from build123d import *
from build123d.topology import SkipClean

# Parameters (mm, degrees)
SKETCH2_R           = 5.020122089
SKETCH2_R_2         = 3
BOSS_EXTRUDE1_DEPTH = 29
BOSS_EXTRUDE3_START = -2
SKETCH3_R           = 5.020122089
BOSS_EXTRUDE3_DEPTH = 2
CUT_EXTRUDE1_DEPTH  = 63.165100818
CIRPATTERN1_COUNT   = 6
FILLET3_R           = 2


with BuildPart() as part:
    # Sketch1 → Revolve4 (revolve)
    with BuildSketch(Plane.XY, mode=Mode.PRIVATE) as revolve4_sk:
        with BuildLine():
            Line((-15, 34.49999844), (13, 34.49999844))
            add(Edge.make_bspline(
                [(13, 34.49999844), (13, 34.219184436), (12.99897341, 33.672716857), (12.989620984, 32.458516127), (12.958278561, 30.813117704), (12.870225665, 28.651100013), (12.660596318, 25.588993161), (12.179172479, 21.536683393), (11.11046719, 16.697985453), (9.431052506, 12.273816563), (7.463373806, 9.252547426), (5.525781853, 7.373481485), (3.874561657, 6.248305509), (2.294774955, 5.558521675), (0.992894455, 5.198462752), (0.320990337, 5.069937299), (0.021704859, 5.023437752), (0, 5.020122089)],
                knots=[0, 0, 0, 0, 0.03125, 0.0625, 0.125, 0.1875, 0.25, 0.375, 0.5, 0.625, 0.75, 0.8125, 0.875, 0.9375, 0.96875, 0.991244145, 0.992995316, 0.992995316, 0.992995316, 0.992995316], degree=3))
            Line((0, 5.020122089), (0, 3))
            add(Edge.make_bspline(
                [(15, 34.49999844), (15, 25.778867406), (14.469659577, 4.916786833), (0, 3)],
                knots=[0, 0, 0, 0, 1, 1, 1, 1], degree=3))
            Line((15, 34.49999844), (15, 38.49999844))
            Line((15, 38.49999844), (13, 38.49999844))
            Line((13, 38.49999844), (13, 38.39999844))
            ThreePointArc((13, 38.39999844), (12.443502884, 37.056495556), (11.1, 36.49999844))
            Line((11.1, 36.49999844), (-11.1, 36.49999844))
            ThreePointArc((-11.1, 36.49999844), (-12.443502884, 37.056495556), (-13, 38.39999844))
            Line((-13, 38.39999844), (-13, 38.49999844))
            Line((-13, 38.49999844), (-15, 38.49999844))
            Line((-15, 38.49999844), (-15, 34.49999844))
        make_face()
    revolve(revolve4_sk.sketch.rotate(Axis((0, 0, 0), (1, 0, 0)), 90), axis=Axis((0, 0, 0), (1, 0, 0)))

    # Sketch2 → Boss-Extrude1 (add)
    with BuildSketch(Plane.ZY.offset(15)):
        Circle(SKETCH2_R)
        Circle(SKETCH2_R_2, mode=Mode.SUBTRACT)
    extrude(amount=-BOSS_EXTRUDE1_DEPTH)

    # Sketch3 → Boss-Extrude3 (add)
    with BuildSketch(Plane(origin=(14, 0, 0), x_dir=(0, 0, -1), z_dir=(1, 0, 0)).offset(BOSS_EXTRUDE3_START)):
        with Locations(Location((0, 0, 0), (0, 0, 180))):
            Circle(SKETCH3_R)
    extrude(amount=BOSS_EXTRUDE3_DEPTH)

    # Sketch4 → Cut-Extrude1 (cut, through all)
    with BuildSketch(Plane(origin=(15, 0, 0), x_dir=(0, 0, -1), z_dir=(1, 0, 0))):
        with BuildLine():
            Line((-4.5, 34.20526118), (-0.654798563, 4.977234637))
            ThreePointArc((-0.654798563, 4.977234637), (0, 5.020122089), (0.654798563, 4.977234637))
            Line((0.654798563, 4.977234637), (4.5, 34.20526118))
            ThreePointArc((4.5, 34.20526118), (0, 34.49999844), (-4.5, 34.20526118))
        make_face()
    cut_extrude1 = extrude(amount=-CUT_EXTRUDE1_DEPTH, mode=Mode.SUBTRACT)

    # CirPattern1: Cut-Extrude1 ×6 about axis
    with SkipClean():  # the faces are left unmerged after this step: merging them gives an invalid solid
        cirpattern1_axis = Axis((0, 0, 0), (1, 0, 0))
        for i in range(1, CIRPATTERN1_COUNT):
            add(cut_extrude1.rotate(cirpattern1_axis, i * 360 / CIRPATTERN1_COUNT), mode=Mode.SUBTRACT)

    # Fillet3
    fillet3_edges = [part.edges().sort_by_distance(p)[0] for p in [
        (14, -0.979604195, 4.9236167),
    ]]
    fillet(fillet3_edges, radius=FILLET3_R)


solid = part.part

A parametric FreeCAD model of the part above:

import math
import FreeCAD as App
import Part
import Sketcher

V = App.Vector


def edges_at(feature, points):
    """Names of the edges that pass closest to the given points."""
    edges = feature.Shape.Edges
    near = lambda p: min(range(len(edges)), key=lambda i: edges[i].distToShape(Part.Vertex(*p))[0])
    return sorted({f"Edge{near(p) + 1}" for p in points})

doc = App.newDocument("Part")
params = doc.addObject("Spreadsheet::Sheet", "Params")
for row, (alias, value) in enumerate([
    ("sketch1_radius", "1.9 mm"),
    ("sketch1_height", "4 mm"),
    ("sketch1_height2", "0.1 mm"),
    ("revolution_angle", "360 deg"),
    ("sketch2_diameter", "6 mm"),
    ("pad1_length", "29 mm"),
    ("pad2_length", "2 mm"),
    ("sketch4_radius", "34.499998 mm"),
    ("fillet_radius", "2 mm"),
], start=1):
    params.set(f"A{row}", alias)
    params.set(f"B{row}", "=" + value)
    params.setAlias(f"B{row}", alias)

body = doc.addObject("PartDesign::Body", "Body")

# Sketch on XY plane
sketch1 = doc.addObject("Sketcher::SketchObject", "Sketch")
body.addObject(sketch1)
sketch1.AttachmentSupport = (doc.XY_Plane, [""])
sketch1.MapMode = "FlatFace"
sketch1.addGeometry(Part.LineSegment(V(-15, 34.499998, 0), V(13, 34.499998, 0)), False)
sketch1.addGeometry(Part.BSplineCurve([V(13, 34.499998, 0), V(13, 34.219184, 0), V(12.998973, 33.672717, 0), V(12.989621, 32.458516, 0), V(12.958279, 30.813118, 0), V(12.870226, 28.6511, 0), V(12.660596, 25.588993, 0), V(12.179172, 21.536683, 0), V(11.110467, 16.697985, 0), V(9.431053, 12.273817, 0), V(7.463374, 9.252547, 0), V(5.525782, 7.373481, 0), V(3.874562, 6.248306, 0), V(2.294775, 5.558522, 0), V(0.992894, 5.198463, 0), V(0.32099, 5.069937, 0), V(0.021705, 5.023438, 0), V(0, 5.020122, 0)], [4, 1, 1, 1, 1, 1, 1, 1, 1, 1, 1, 1, 1, 1, 1, 4], [0, 0.03125, 0.0625, 0.125, 0.1875, 0.25, 0.375, 0.5, 0.625, 0.75, 0.8125, 0.875, 0.9375, 0.96875, 0.991244145, 0.992995316], False, 3, [1, 1, 1, 1, 1, 1, 1, 1, 1, 1, 1, 1, 1, 1, 1, 1, 1, 1], False), False)
sketch1.addGeometry(Part.LineSegment(V(0, 5.020122, 0), V(0, 3, 0)), False)
sketch1.addGeometry(Part.BSplineCurve([V(15, 34.499998, 0), V(15, 25.778867, 0), V(14.46966, 4.916787, 0), V(0, 3, 0)], [4, 4], [0, 1], False, 3, [1, 1, 1, 1], False), False)
sketch1.addGeometry(Part.LineSegment(V(15, 34.499998, 0), V(15, 38.499998, 0)), False)
sketch1.addGeometry(Part.LineSegment(V(15, 38.499998, 0), V(13, 38.499998, 0)), False)
sketch1.addGeometry(Part.LineSegment(V(13, 38.499998, 0), V(13, 38.399998, 0)), False)
sketch1.addGeometry(Part.ArcOfCircle(Part.Circle(V(11.1, 38.399998, 0), V(0, 0, 1), 1.9), math.radians(-90), math.radians(0)), False)
sketch1.addGeometry(Part.LineSegment(V(11.1, 36.499998, 0), V(-11.1, 36.499998, 0)), False)
sketch1.addGeometry(Part.ArcOfCircle(Part.Circle(V(-11.1, 38.399998, 0), V(0, 0, 1), 1.9), math.radians(-180), math.radians(-90)), False)
sketch1.addGeometry(Part.LineSegment(V(-13, 38.399998, 0), V(-13, 38.499998, 0)), False)
sketch1.addGeometry(Part.LineSegment(V(-13, 38.499998, 0), V(-15, 38.499998, 0)), False)
sketch1.addGeometry(Part.LineSegment(V(-15, 38.499998, 0), V(-15, 34.499998, 0)), False)
sketch1.addConstraint(Sketcher.Constraint("Block", 1))
sketch1.addConstraint(Sketcher.Constraint("Block", 3))
sketch1.addConstraint(Sketcher.Constraint("Coincident", 0, 2, 1, 1))
sketch1.addConstraint(Sketcher.Constraint("Coincident", 1, 2, 2, 1))
sketch1.addConstraint(Sketcher.Constraint("Coincident", 2, 2, 3, 2))
sketch1.addConstraint(Sketcher.Constraint("Coincident", 3, 1, 4, 1))
sketch1.addConstraint(Sketcher.Constraint("Coincident", 4, 2, 5, 1))
sketch1.addConstraint(Sketcher.Constraint("Coincident", 5, 2, 6, 1))
sketch1.addConstraint(Sketcher.Constraint("Tangent", 6, 2, 7, 2))
sketch1.addConstraint(Sketcher.Constraint("Tangent", 7, 1, 8, 1))
sketch1.addConstraint(Sketcher.Constraint("Tangent", 8, 2, 9, 2))
sketch1.addConstraint(Sketcher.Constraint("Tangent", 9, 1, 10, 1))
sketch1.addConstraint(Sketcher.Constraint("Coincident", 10, 2, 11, 1))
sketch1.addConstraint(Sketcher.Constraint("Coincident", 11, 2, 12, 1))
sketch1.addConstraint(Sketcher.Constraint("Coincident", 12, 2, 0, 1))
sketch1.addConstraint(Sketcher.Constraint("Horizontal", 0))
sketch1.addConstraint(Sketcher.Constraint("Vertical", 4))
sketch1.addConstraint(Sketcher.Constraint("Horizontal", 5))
sketch1.addConstraint(Sketcher.Constraint("Vertical", 6))
sketch1.addConstraint(Sketcher.Constraint("Horizontal", 8))
sketch1.addConstraint(Sketcher.Constraint("Vertical", 10))
sketch1.addConstraint(Sketcher.Constraint("Horizontal", 11))
sketch1.addConstraint(Sketcher.Constraint("Vertical", 12))
sketch1.addConstraint(Sketcher.Constraint("Equal", 7, 9))
sketch1.addConstraint(Sketcher.Constraint("Symmetric", 5, 2, 10, 2, -2))
sketch1.addConstraint(Sketcher.Constraint("Vertical", 0, 2, 5, 2))
sketch1.addConstraint(Sketcher.Constraint("Equal", 5, 11))
sketch1.addConstraint(Sketcher.Constraint("Radius", 7, 1.9))
sketch1.addConstraint(Sketcher.Constraint("DistanceY", 4, 1, 4, 2, 4.0))
sketch1.addConstraint(Sketcher.Constraint("DistanceY", 6, 2, 6, 1, 0.1))
sketch1.setExpression("Constraints[27]", "Params.sketch1_radius")
sketch1.setExpression("Constraints[28]", "Params.sketch1_height")
sketch1.setExpression("Constraints[29]", "Params.sketch1_height2")
revolution = doc.addObject("PartDesign::Revolution", "Revolution")
body.addObject(revolution)
revolution.Profile = sketch1
revolution.ReferenceAxis = (sketch1, ["H_Axis"])
revolution.setExpression("Angle", "Params.revolution_angle")

# Sketch on YZ plane
sketch2 = doc.addObject("Sketcher::SketchObject", "Sketch001")
body.addObject(sketch2)
sketch2.AttachmentSupport = (doc.YZ_Plane, [""])
sketch2.MapMode = "FlatFace"
sketch2.AttachmentOffset = App.Placement(V(0, 0, -15), App.Rotation())
sketch2.addGeometry(Part.Circle(V(0, 0, 0), V(0, 0, 1), 5), False)
sketch2.addGeometry(Part.Circle(V(0, 0, 0), V(0, 0, 1), 3), False)
sketch2.addConstraint(Sketcher.Constraint("Coincident", 0, 3, -1, 1))
sketch2.addConstraint(Sketcher.Constraint("Coincident", 1, 3, -1, 1))
sketch2.addConstraint(Sketcher.Constraint("Diameter", 1, 6.0))
sketch2.addConstraint(Sketcher.Constraint("Diameter", 0, 10.040244))
sketch2.setExpression("Constraints[2]", "Params.sketch2_diameter")
pad1 = doc.addObject("PartDesign::Pad", "Pad")
body.addObject(pad1)
pad1.Profile = sketch2
pad1.setExpression("Length", "Params.pad1_length")

# Sketch on YZ plane
sketch3 = doc.addObject("Sketcher::SketchObject", "Sketch002")
body.addObject(sketch3)
sketch3.AttachmentSupport = (doc.YZ_Plane, [""])
sketch3.MapMode = "FlatFace"
sketch3.AttachmentOffset = App.Placement(V(0, 0, 12), App.Rotation())
sketch3.addGeometry(Part.Circle(V(0, 0, 0), V(0, 0, 1), 5), False)
sketch3.addConstraint(Sketcher.Constraint("Coincident", 0, 3, -1, 1))
sketch3.addConstraint(Sketcher.Constraint("Diameter", 0, 10.040244))
pad2 = doc.addObject("PartDesign::Pad", "Pad001")
body.addObject(pad2)
pad2.Profile = sketch3
pad2.setExpression("Length", "Params.pad2_length")

# Sketch on YZ plane
sketch4 = doc.addObject("Sketcher::SketchObject", "Sketch003")
body.addObject(sketch4)
sketch4.AttachmentSupport = (doc.YZ_Plane, [""])
sketch4.MapMode = "FlatFace"
sketch4.AttachmentOffset = App.Placement(V(0, 0, 15), App.Rotation())
sketch4.addGeometry(Part.LineSegment(V(34.2, 4.5, 0), V(5, 0.7, 0)), False)
sketch4.addGeometry(Part.ArcOfCircle(Part.Circle(V(0, 0, 0), V(0, 0, 1), 5), math.radians(-7.49), math.radians(7.49)), False)
sketch4.addGeometry(Part.LineSegment(V(5, -0.7, 0), V(34.2, -4.5, 0)), False)
sketch4.addGeometry(Part.ArcOfCircle(Part.Circle(V(0, 0, 0), V(0, 0, 1), 34.5), math.radians(-7.49), math.radians(7.49)), False)
sketch4.addConstraint(Sketcher.Constraint("Coincident", 0, 2, 1, 2))
sketch4.addConstraint(Sketcher.Constraint("Coincident", 1, 1, 2, 1))
sketch4.addConstraint(Sketcher.Constraint("Coincident", 2, 2, 3, 1))
sketch4.addConstraint(Sketcher.Constraint("Coincident", 3, 2, 0, 1))
sketch4.addConstraint(Sketcher.Constraint("Coincident", 1, 3, -1, 1))
sketch4.addConstraint(Sketcher.Constraint("Coincident", 3, 3, -1, 1))
sketch4.addConstraint(Sketcher.Constraint("Vertical", 0, 2, 1, 1))
sketch4.addConstraint(Sketcher.Constraint("Vertical", 2, 2, 3, 2))
sketch4.addConstraint(Sketcher.Constraint("Radius", 3, 34.499998))
sketch4.addConstraint(Sketcher.Constraint("DistanceY", 2, 2, 3, 2, 9.0))
sketch4.addConstraint(Sketcher.Constraint("Radius", 1, 5.020122))
sketch4.addConstraint(Sketcher.Constraint("DistanceY", -1, 1, 0, 2, 0.654799))
sketch4.setExpression("Constraints[8]", "Params.sketch4_radius")
pocket1 = doc.addObject("PartDesign::Pocket", "Pocket")
body.addObject(pocket1)
pocket1.Profile = sketch4
pocket1.Type = "ThroughAll"
doc.recompute()

polarpattern = doc.addObject("PartDesign::PolarPattern", "PolarPattern")
body.addObject(polarpattern)
polarpattern.Originals = [pocket1]
polarpattern.Axis = (doc.X_Axis, [""])
polarpattern.Angle = 360
polarpattern.Occurrences = 6
body.Tip = polarpattern
doc.recompute()

fillet = doc.addObject("PartDesign::Fillet", "Fillet")
body.addObject(fillet)
fillet.Base = (polarpattern, edges_at(polarpattern, [(14, -0.98, 4.924)]))
fillet.setExpression("Radius", "Params.fillet_radius")

doc.recompute()
